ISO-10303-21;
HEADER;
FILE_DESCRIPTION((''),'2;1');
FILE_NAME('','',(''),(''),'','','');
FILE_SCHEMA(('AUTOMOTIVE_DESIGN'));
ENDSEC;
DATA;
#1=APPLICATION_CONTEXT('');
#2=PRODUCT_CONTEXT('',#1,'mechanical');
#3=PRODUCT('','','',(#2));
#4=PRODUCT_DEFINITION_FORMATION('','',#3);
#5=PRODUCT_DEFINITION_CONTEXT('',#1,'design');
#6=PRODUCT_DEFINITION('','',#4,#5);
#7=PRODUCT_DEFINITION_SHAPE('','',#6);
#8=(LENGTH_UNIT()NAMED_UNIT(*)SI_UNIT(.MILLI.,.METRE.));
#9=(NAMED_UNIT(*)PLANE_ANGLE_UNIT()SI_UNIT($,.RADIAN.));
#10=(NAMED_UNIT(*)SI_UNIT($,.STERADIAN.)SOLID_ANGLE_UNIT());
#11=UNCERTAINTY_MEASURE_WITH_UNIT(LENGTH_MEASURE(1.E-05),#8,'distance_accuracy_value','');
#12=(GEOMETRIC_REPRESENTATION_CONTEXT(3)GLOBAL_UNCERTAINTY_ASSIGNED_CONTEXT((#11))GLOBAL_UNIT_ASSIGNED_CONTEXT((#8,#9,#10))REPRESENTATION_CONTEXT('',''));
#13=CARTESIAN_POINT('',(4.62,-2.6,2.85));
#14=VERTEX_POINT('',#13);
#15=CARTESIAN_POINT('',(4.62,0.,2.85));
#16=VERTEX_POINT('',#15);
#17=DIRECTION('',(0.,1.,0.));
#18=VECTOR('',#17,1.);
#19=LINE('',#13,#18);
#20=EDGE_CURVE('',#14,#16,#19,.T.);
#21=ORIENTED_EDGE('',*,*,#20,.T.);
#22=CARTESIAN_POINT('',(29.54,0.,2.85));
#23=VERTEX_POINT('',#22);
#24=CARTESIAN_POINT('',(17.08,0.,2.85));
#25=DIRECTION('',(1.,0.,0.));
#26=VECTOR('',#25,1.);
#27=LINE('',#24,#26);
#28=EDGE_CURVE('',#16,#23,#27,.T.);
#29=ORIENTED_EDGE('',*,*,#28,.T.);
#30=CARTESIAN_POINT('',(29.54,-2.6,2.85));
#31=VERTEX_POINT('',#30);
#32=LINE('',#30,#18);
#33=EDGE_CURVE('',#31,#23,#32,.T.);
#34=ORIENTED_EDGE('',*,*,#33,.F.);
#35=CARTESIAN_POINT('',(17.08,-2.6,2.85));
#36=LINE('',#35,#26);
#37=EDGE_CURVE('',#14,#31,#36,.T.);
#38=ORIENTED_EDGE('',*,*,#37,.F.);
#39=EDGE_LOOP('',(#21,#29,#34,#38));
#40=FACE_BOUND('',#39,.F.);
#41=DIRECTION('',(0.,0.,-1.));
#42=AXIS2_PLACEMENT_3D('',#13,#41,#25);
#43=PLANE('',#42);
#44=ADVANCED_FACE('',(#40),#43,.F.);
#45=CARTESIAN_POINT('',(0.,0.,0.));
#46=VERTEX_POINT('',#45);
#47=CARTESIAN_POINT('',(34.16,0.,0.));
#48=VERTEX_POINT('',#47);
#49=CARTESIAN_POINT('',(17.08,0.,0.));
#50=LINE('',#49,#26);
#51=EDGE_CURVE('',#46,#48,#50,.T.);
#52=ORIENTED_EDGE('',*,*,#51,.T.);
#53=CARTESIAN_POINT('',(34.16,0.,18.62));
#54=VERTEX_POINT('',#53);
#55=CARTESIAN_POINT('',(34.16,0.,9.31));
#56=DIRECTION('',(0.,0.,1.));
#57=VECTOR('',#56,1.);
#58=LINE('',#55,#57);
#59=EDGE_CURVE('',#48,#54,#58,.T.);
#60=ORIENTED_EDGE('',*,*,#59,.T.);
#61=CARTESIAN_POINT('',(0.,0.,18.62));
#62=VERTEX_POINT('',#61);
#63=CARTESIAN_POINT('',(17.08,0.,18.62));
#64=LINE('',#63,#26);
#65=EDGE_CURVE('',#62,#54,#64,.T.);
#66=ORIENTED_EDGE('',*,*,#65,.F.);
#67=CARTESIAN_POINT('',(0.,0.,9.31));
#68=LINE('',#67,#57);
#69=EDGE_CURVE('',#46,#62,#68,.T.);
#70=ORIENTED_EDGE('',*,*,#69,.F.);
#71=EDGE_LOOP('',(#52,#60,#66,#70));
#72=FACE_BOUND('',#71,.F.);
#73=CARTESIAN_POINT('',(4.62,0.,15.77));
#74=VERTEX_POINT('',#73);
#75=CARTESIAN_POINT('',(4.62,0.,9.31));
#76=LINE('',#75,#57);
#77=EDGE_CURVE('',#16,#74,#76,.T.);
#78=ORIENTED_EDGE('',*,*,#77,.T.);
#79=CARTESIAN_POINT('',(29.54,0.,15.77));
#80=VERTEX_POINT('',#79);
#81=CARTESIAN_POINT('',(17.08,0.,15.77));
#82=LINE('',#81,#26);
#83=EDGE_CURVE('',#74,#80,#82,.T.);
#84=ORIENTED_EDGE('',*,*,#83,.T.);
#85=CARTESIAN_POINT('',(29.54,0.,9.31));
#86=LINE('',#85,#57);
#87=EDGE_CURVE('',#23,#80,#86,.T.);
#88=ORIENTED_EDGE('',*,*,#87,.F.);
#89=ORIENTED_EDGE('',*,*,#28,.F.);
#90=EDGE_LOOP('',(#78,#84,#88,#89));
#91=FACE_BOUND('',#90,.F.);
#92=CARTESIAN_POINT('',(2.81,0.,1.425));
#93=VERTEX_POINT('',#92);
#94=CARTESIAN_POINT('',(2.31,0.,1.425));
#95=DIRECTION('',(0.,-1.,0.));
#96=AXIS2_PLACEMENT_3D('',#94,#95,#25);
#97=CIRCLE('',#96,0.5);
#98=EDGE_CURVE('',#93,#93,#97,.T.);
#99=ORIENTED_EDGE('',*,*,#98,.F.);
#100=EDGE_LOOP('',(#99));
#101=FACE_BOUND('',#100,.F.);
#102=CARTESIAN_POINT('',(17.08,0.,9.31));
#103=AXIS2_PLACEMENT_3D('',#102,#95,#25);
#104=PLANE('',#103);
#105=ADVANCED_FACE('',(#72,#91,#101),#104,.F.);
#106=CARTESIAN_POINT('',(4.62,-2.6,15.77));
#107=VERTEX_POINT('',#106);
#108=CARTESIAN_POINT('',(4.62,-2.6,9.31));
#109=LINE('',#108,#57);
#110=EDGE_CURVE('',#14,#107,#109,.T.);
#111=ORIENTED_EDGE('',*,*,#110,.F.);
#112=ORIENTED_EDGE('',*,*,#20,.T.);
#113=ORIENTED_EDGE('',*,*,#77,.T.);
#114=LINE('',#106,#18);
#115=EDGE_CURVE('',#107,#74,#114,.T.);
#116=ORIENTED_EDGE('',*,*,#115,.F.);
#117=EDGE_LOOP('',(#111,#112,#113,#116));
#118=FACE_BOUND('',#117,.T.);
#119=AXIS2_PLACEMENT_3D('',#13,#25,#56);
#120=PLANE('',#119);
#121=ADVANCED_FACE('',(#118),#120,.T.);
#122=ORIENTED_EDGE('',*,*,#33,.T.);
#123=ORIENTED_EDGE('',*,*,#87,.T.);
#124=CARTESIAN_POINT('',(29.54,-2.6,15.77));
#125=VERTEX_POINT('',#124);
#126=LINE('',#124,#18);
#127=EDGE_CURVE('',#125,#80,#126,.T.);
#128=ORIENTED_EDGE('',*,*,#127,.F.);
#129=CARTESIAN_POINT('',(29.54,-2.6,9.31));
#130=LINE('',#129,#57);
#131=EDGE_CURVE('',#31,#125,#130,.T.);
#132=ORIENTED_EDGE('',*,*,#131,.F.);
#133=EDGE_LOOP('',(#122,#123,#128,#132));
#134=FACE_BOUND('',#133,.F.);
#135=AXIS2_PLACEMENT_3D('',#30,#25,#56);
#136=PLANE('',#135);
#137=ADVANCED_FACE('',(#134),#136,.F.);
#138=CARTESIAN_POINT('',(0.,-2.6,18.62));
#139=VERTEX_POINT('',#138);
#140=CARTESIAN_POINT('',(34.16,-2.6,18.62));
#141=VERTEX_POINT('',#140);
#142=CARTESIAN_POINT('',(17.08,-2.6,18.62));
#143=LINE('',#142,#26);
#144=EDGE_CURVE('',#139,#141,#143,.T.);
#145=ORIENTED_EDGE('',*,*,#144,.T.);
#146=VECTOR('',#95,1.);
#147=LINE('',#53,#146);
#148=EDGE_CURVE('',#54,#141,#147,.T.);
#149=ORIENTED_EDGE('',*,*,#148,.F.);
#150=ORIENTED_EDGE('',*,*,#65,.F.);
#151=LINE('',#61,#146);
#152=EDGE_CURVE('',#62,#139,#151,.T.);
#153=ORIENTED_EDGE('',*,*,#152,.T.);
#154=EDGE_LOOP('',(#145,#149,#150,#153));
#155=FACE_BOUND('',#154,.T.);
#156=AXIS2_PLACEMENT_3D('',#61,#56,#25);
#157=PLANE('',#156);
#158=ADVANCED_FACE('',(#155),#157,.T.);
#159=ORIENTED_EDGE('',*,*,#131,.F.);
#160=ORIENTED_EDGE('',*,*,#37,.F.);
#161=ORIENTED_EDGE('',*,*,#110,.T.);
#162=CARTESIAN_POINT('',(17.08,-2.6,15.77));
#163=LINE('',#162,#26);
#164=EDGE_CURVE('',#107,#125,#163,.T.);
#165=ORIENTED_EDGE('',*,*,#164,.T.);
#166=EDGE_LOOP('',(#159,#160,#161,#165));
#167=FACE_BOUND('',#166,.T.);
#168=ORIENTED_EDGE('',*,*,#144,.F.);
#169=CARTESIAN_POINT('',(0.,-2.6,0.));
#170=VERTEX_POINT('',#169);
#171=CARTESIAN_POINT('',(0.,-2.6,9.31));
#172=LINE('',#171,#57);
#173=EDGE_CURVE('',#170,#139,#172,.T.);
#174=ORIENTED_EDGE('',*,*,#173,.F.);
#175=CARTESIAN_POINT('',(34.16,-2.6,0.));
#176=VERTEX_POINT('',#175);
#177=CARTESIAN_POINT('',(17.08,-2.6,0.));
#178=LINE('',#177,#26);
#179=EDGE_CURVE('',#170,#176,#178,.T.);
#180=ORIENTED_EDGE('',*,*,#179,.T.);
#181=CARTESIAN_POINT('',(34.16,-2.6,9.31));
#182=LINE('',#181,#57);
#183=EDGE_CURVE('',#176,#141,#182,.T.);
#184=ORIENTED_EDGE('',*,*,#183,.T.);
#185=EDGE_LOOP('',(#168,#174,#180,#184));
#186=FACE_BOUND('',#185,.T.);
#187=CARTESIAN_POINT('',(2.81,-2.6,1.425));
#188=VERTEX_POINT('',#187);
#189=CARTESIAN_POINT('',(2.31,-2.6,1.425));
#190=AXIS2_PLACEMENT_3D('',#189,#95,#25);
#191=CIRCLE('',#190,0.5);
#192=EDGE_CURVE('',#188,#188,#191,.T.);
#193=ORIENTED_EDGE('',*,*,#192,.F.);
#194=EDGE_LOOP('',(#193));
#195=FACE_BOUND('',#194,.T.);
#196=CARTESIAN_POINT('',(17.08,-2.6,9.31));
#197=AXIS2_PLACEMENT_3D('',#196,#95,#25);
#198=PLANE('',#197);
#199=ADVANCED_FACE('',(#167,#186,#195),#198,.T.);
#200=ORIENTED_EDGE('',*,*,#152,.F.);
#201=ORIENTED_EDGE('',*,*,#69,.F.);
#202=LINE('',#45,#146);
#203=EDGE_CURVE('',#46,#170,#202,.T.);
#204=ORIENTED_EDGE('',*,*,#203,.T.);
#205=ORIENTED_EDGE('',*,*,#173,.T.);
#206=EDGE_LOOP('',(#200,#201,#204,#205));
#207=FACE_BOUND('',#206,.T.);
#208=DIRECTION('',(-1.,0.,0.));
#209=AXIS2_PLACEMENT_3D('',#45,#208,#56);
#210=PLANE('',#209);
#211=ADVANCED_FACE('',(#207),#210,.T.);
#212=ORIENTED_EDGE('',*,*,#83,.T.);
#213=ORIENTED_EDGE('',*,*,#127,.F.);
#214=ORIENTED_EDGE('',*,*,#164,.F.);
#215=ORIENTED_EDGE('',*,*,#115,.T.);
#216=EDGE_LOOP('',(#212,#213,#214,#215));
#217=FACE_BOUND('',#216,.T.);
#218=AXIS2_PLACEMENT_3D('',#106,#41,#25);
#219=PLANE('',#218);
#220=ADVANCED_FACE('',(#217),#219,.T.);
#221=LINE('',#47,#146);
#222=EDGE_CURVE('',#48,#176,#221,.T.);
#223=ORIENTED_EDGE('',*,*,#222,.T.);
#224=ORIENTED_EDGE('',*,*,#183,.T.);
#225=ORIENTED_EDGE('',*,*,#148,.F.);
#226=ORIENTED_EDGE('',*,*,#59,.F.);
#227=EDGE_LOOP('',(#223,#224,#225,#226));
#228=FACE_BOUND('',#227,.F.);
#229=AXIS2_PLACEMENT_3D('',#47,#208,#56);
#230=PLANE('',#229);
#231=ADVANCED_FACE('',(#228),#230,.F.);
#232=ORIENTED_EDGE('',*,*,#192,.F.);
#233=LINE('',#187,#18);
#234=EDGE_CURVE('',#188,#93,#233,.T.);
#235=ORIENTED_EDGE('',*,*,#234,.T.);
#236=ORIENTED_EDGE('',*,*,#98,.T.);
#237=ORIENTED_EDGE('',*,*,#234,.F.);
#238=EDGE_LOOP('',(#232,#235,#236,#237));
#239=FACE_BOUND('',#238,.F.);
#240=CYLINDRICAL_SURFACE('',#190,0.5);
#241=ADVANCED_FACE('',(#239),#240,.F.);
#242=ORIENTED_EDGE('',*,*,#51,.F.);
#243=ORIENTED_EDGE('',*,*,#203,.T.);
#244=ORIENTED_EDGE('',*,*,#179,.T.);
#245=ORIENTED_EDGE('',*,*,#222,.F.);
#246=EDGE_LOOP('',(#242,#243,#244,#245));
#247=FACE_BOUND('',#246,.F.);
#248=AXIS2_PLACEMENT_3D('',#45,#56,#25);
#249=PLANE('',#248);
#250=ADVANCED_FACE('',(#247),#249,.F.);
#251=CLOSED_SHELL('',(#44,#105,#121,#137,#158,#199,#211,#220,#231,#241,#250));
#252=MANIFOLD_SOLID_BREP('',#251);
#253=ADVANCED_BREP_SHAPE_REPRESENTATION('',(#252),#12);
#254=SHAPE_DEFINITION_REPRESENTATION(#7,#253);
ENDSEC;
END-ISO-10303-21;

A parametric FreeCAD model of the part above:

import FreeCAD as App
import Part
import Sketcher
from FreeCAD import Vector


def add_polygon(sketch, points):
    """Adds a closed chain of lines whose ends are joined by coincident constraints."""
    first, n = sketch.GeometryCount, len(points)
    for a, b in zip(points, points[1:] + points[:1]):
        sketch.addGeometry(Part.LineSegment(App.Vector(*a, 0), App.Vector(*b, 0)), False)
    for i in range(n):
        sketch.addConstraint(Sketcher.Constraint("Coincident", first + i, 2, first + (i + 1) % n, 1))

doc = App.newDocument("Part")
body = doc.addObject("PartDesign::Body", "Body")

sketch1 = body.newObject("Sketcher::SketchObject", "Sketch")
sketch1.AttachmentSupport = (doc.getObject("XZ_Plane"), [""])
sketch1.MapMode = "FlatFace"
add_polygon(sketch1, [(0, 19), (0, 0), (34, 0), (34, 19)])
sketch1.addConstraint([
    Sketcher.Constraint("Vertical", 0),
    Sketcher.Constraint("Horizontal", 1),
    Sketcher.Constraint("Vertical", 2),
    Sketcher.Constraint("Horizontal", 3),
    Sketcher.Constraint("Coincident", 0, 2, -1, 1),
    Sketcher.Constraint("DistanceX", 1, 1, 1, 2, 34.16),
    Sketcher.Constraint("DistanceY", 0, 2, 0, 1, 18.62),
])
pad1 = body.newObject("PartDesign::Pad", "Pad")
pad1.Profile = sketch1
pad1.Length = 2.6

sketch2 = body.newObject("Sketcher::SketchObject", "Sketch001")
sketch2.AttachmentSupport = (doc.getObject("XZ_Plane"), [""])
sketch2.MapMode = "FlatFace"
sketch2.AttachmentOffset = App.Placement(Vector(0, 0, 2.6), App.Rotation())
sketch2.addGeometry(Part.Circle(Vector(2.3, 1.4, 0), Vector(0, 0, 1), 0.5), False)
add_polygon(sketch2, [(4.6, 15.8), (4.6, 2.9), (29.5, 2.9), (29.5, 15.8)])
sketch2.addConstraint([
    Sketcher.Constraint("Vertical", 1),
    Sketcher.Constraint("Horizontal", 2),
    Sketcher.Constraint("Vertical", 3),
    Sketcher.Constraint("Horizontal", 4),
    Sketcher.Constraint("Diameter", 0, 1.0),
    Sketcher.Constraint("DistanceX", 2, 1, 2, 2, 24.92),
    Sketcher.Constraint("DistanceY", 1, 2, 1, 1, 12.92),
    Sketcher.Constraint("DistanceX", -1, 1, 0, 3, 2.31),
    Sketcher.Constraint("DistanceX", -1, 1, 1, 2, 4.62),
    Sketcher.Constraint("DistanceY", -1, 1, 1, 2, 2.85),
    Sketcher.Constraint("DistanceY", -1, 1, 0, 3, 1.425),
])
pocket1 = body.newObject("PartDesign::Pocket", "Pocket")
pocket1.Profile = sketch2
pocket1.Length = 2.6

doc.recompute()
